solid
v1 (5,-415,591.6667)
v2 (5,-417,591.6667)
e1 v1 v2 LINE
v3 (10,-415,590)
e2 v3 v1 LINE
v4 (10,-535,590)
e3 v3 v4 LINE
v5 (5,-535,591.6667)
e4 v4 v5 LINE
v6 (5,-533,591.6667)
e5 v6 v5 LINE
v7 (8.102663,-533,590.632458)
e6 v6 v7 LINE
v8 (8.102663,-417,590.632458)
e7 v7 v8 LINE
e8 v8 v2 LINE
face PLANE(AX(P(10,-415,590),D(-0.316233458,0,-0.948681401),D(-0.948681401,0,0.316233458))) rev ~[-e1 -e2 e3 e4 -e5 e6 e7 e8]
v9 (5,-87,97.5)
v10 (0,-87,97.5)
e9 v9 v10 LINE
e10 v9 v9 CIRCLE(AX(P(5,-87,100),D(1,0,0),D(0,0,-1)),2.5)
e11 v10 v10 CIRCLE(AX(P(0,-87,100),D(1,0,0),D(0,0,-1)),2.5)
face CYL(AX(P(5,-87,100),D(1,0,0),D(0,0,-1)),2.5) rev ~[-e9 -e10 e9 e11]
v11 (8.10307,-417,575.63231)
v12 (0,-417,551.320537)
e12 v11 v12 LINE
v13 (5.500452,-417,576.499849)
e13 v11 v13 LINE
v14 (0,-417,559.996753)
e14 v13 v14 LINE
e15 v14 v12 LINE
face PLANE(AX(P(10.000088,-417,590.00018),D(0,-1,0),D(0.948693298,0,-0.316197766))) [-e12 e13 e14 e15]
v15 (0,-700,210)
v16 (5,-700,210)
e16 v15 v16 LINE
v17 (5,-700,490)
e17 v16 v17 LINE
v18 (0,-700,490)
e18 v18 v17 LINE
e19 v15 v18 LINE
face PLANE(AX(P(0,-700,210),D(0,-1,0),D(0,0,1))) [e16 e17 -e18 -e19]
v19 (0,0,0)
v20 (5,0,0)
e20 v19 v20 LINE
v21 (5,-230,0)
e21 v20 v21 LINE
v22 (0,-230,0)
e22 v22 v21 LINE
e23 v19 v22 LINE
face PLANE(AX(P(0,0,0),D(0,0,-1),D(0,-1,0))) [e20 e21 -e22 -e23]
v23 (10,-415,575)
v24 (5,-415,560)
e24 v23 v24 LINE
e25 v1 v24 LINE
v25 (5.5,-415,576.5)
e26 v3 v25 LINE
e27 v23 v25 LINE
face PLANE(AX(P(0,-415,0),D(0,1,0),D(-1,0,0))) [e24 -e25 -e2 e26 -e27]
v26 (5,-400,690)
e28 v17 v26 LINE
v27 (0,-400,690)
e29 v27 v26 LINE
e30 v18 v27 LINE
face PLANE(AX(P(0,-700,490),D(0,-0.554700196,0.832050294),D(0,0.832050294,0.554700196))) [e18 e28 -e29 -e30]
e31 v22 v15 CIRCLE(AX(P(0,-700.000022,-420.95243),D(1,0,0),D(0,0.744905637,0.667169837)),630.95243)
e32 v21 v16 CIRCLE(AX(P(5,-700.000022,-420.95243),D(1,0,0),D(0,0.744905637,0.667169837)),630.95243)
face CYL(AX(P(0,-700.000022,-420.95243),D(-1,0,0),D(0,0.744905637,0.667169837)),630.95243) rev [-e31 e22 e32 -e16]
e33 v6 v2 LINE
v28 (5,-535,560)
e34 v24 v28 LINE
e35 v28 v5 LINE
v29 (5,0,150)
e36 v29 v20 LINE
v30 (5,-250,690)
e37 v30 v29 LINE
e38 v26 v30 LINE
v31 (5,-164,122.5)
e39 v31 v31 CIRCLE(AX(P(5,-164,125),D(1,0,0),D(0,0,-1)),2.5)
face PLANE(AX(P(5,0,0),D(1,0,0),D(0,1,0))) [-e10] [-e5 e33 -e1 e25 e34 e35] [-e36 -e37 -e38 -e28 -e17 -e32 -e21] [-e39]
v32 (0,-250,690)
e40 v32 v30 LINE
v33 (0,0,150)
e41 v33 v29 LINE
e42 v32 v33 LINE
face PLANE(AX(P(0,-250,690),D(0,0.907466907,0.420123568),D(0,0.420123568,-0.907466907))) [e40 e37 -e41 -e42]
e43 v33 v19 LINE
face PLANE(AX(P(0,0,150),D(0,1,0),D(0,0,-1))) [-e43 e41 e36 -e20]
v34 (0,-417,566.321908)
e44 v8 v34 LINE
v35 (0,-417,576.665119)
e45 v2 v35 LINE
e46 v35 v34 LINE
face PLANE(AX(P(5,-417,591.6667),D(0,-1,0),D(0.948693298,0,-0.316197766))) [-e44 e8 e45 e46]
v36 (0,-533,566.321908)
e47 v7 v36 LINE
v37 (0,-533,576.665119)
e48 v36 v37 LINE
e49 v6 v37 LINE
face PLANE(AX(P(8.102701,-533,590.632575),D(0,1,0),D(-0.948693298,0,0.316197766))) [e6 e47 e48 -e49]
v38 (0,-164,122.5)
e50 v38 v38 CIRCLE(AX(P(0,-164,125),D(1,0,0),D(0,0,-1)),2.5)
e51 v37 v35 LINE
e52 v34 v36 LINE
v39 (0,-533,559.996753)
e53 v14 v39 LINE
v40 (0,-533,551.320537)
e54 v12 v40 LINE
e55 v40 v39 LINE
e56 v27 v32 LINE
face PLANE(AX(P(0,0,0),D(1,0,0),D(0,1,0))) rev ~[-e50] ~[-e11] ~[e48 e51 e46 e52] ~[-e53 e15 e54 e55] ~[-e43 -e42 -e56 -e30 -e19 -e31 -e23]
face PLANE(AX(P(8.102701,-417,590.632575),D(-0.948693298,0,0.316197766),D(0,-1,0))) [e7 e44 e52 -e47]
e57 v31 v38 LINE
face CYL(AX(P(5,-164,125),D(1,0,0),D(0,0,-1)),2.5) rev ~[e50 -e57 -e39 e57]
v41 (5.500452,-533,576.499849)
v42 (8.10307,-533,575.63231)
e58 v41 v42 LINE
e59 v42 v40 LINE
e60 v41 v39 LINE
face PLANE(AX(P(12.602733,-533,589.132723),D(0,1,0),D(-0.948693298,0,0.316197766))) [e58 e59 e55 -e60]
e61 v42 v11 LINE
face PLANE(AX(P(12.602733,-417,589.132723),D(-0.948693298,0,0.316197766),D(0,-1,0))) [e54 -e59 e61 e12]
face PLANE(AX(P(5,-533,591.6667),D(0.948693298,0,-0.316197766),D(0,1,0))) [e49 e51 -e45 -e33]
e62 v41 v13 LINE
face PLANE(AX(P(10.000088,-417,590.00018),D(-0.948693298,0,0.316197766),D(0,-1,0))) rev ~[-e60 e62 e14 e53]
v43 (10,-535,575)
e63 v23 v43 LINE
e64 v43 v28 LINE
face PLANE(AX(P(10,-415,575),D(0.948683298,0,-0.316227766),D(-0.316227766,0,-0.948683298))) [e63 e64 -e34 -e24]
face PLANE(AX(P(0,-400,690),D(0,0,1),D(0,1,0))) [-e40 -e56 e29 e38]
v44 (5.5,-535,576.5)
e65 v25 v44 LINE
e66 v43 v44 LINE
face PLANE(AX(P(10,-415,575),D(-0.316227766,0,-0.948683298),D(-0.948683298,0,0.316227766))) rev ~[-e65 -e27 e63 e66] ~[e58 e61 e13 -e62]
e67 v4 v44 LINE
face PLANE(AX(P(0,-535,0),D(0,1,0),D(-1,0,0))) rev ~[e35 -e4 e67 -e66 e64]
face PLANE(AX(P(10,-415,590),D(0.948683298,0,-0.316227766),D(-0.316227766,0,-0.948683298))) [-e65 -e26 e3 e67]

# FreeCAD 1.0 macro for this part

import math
import FreeCAD as App
import Part
import Sketcher
from FreeCAD import Vector

doc = App.newDocument("Part")
body = doc.addObject("PartDesign::Body", "Body")

sketch1 = body.newObject("Sketcher::SketchObject", "Sketch")
sketch1.AttachmentSupport = (doc.getObject("YZ_Plane"), [""])
sketch1.MapMode = "FlatFace"
sketch1.addGeometry(Part.LineSegment(Vector(-700, 490, 0), Vector(-700, 210, 0)), False)
sketch1.addGeometry(Part.ArcOfCircle(Part.Circle(Vector(-700, -421, 0), Vector(0, 0, 1), 631), math.radians(42), math.radians(90)), False)
sketch1.addGeometry(Part.LineSegment(Vector(-230, 0, 0), Vector(0, 0, 0)), False)
sketch1.addGeometry(Part.LineSegment(Vector(0, 0, 0), Vector(0, 150, 0)), False)
sketch1.addGeometry(Part.LineSegment(Vector(0, 150, 0), Vector(-250, 690, 0)), False)
sketch1.addGeometry(Part.LineSegment(Vector(-250, 690, 0), Vector(-400, 690, 0)), False)
sketch1.addGeometry(Part.LineSegment(Vector(-400, 690, 0), Vector(-700, 490, 0)), False)
sketch1.addConstraint(Sketcher.Constraint("Coincident", 0, 2, 1, 2))
sketch1.addConstraint(Sketcher.Constraint("Coincident", 1, 1, 2, 1))
sketch1.addConstraint(Sketcher.Constraint("Coincident", 2, 2, 3, 1))
sketch1.addConstraint(Sketcher.Constraint("Coincident", 3, 2, 4, 1))
sketch1.addConstraint(Sketcher.Constraint("Coincident", 4, 2, 5, 1))
sketch1.addConstraint(Sketcher.Constraint("Coincident", 5, 2, 6, 1))
sketch1.addConstraint(Sketcher.Constraint("Coincident", 6, 2, 0, 1))
sketch1.addConstraint(Sketcher.Constraint("Vertical", 0))
sketch1.addConstraint(Sketcher.Constraint("Horizontal", 2))
sketch1.addConstraint(Sketcher.Constraint("Vertical", 3))
sketch1.addConstraint(Sketcher.Constraint("Horizontal", 5))
sketch1.addConstraint(Sketcher.Constraint("Coincident", 2, 2, -1, 1))
sketch1.addConstraint(Sketcher.Constraint("Vertical", 1, 3, 0, 2))
sketch1.addConstraint(Sketcher.Constraint("Equal", 5, 3))
sketch1.addConstraint(Sketcher.Constraint("DistanceX", 2, 1, 2, 2, 230.0))
sketch1.addConstraint(Sketcher.Constraint("DistanceX", 5, 2, 5, 1, 150.0))
sketch1.addConstraint(Sketcher.Constraint("DistanceY", 0, 2, 0, 1, 280.0))
sketch1.addConstraint(Sketcher.Constraint("DistanceX", 1, 3, -1, 1, 700.0))
sketch1.addConstraint(Sketcher.Constraint("DistanceY", -1, 1, 4, 2, 690.0))
sketch1.addConstraint(Sketcher.Constraint("DistanceX", 0, 2, 5, 2, 300.0))
sketch1.addConstraint(Sketcher.Constraint("DistanceY", 6, 2, 5, 2, 200.0))
pad1 = body.newObject("PartDesign::Pad", "Pad")
pad1.Profile = sketch1
pad1.Length = 5

sketch2 = body.newObject("Sketcher::SketchObject", "Sketch001")
sketch2.AttachmentSupport = (doc.getObject("YZ_Plane"), [""])
sketch2.MapMode = "FlatFace"
sketch2.AttachmentOffset = App.Placement(Vector(0, 0, 5), App.Rotation())
sketch2.addGeometry(Part.Circle(Vector(-87, 100, 0), Vector(0, 0, 1), 2.5), False)
sketch2.addGeometry(Part.Circle(Vector(-164, 125, 0), Vector(0, 0, 1), 2.5), False)
sketch2.addConstraint(Sketcher.Constraint("Equal", 0, 1))
sketch2.addConstraint(Sketcher.Constraint("Diameter", 0, 5.0))
sketch2.addConstraint(Sketcher.Constraint("DistanceX", 0, 3, -1, 1, 87.0))
sketch2.addConstraint(Sketcher.Constraint("DistanceY", -1, 1, 0, 3, 100.0))
sketch2.addConstraint(Sketcher.Constraint("DistanceX", 1, 3, -1, 1, 164.0))
sketch2.addConstraint(Sketcher.Constraint("DistanceY", -1, 1, 1, 3, 125.0))
pocket1 = body.newObject("PartDesign::Pocket", "Pocket")
pocket1.Profile = sketch2
pocket1.Type = "ThroughAll"

sketch3 = body.newObject("Sketcher::SketchObject", "Sketch002")
sketch3.AttachmentSupport = (doc.getObject("XZ_Plane"), [""])
sketch3.MapMode = "FlatFace"
sketch3.AttachmentOffset = App.Placement(Vector(0, 0, 415), App.Rotation())
sketch3.addGeometry(Part.LineSegment(Vector(5, 591.7, 0), Vector(10, 590, 0)), False)
sketch3.addGeometry(Part.LineSegment(Vector(10, 590, 0), Vector(5.5, 576.5, 0)), False)
sketch3.addGeometry(Part.LineSegment(Vector(5.5, 576.5, 0), Vector(10, 575, 0)), False)
sketch3.addGeometry(Part.LineSegment(Vector(10, 575, 0), Vector(5, 560, 0)), False)
sketch3.addGeometry(Part.LineSegment(Vector(5, 560, 0), Vector(5, 591.7, 0)), False)
sketch3.addConstraint(Sketcher.Constraint("Coincident", 0, 2, 1, 1))
sketch3.addConstraint(Sketcher.Constraint("Coincident", 1, 2, 2, 1))
sketch3.addConstraint(Sketcher.Constraint("Coincident", 2, 2, 3, 1))
sketch3.addConstraint(Sketcher.Constraint("Coincident", 3, 2, 4, 1))
sketch3.addConstraint(Sketcher.Constraint("Coincident", 4, 2, 0, 1))
sketch3.addConstraint(Sketcher.Constraint("Vertical", 4))
sketch3.addConstraint(Sketcher.Constraint("Perpendicular", 0, 1))
sketch3.addConstraint(Sketcher.Constraint("Perpendicular", 1, 2))
sketch3.addConstraint(Sketcher.Constraint("Perpendicular", 2, 3))
sketch3.addConstraint(Sketcher.Constraint("Vertical", 0, 2, 2, 2))
sketch3.addConstraint(Sketcher.Constraint("DistanceY", 2, 2, 0, 2, 15.0))
sketch3.addConstraint(Sketcher.Constraint("DistanceY", 3, 2, 2, 2, 15.0))
sketch3.addConstraint(Sketcher.Constraint("DistanceX", -1, 1, 0, 2, 10.0))
sketch3.addConstraint(Sketcher.Constraint("DistanceY", -1, 1, 0, 2, 590.0))
sketch3.addConstraint(Sketcher.Constraint("DistanceX", -1, 1, 3, 2, 5.0))
pad2 = body.newObject("PartDesign::Pad", "Pad001")
pad2.Profile = sketch3
pad2.Length = 120

sketch4 = body.newObject("Sketcher::SketchObject", "Sketch003")
sketch4.Placement = App.Placement(Vector(5, -535, 591.6667), App.Rotation(Vector(0.948693298, 0, -0.316197766), Vector(0, 1.000000001, 0), Vector(0.316197766, 0, 0.948693298), "ZXY"))
sketch4.addGeometry(Part.LineSegment(Vector(0, 118, 0), Vector(0, 2, 0)), False)
sketch4.addGeometry(Part.LineSegment(Vector(0, 2, 0), Vector(3.3, 2, 0)), False)
sketch4.addGeometry(Part.LineSegment(Vector(3.3, 2, 0), Vector(3.3, 118, 0)), False)
sketch4.addGeometry(Part.LineSegment(Vector(3.3, 118, 0), Vector(0, 118, 0)), False)
sketch4.addGeometry(Part.LineSegment(Vector(5.3, 118, 0), Vector(5.3, 2, 0)), False)
sketch4.addGeometry(Part.LineSegment(Vector(5.3, 2, 0), Vector(8, 2, 0)), False)
sketch4.addGeometry(Part.LineSegment(Vector(8, 2, 0), Vector(8, 118, 0)), False)
sketch4.addGeometry(Part.LineSegment(Vector(8, 118, 0), Vector(5.3, 118, 0)), False)
sketch4.addConstraint(Sketcher.Constraint("Coincident", 0, 2, 1, 1))
sketch4.addConstraint(Sketcher.Constraint("Coincident", 1, 2, 2, 1))
sketch4.addConstraint(Sketcher.Constraint("Coincident", 2, 2, 3, 1))
sketch4.addConstraint(Sketcher.Constraint("Coincident", 3, 2, 0, 1))
sketch4.addConstraint(Sketcher.Constraint("Coincident", 4, 2, 5, 1))
sketch4.addConstraint(Sketcher.Constraint("Coincident", 5, 2, 6, 1))
sketch4.addConstraint(Sketcher.Constraint("Coincident", 6, 2, 7, 1))
sketch4.addConstraint(Sketcher.Constraint("Coincident", 7, 2, 4, 1))
sketch4.addConstraint(Sketcher.Constraint("Vertical", 0))
sketch4.addConstraint(Sketcher.Constraint("Horizontal", 1))
sketch4.addConstraint(Sketcher.Constraint("Vertical", 2))
sketch4.addConstraint(Sketcher.Constraint("Horizontal", 3))
sketch4.addConstraint(Sketcher.Constraint("Vertical", 4))
sketch4.addConstraint(Sketcher.Constraint("Horizontal", 5))
sketch4.addConstraint(Sketcher.Constraint("Vertical", 6))
sketch4.addConstraint(Sketcher.Constraint("Horizontal", 7))
sketch4.addConstraint(Sketcher.Constraint("PointOnObject", 0, 2, -2))
sketch4.addConstraint(Sketcher.Constraint("Horizontal", 1, 2, 4, 2))
sketch4.addConstraint(Sketcher.Constraint("Horizontal", 3, 2, 6, 2))
sketch4.addConstraint(Sketcher.Constraint("DistanceY", -1, 1, 0, 2, 2.0))
sketch4.addConstraint(Sketcher.Constraint("DistanceX", 1, 2, 4, 2, 2.0))
sketch4.addConstraint(Sketcher.Constraint("DistanceY", 0, 2, 0, 1, 116.0))
sketch4.addConstraint(Sketcher.Constraint("DistanceX", 1, 1, 1, 2, 3.2705))
sketch4.addConstraint(Sketcher.Constraint("DistanceX", 5, 1, 5, 2, 2.7434))
pocket2 = body.newObject("PartDesign::Pocket", "Pocket001")
pocket2.Profile = sketch4
pocket2.Type = "ThroughAll"

doc.recompute()
